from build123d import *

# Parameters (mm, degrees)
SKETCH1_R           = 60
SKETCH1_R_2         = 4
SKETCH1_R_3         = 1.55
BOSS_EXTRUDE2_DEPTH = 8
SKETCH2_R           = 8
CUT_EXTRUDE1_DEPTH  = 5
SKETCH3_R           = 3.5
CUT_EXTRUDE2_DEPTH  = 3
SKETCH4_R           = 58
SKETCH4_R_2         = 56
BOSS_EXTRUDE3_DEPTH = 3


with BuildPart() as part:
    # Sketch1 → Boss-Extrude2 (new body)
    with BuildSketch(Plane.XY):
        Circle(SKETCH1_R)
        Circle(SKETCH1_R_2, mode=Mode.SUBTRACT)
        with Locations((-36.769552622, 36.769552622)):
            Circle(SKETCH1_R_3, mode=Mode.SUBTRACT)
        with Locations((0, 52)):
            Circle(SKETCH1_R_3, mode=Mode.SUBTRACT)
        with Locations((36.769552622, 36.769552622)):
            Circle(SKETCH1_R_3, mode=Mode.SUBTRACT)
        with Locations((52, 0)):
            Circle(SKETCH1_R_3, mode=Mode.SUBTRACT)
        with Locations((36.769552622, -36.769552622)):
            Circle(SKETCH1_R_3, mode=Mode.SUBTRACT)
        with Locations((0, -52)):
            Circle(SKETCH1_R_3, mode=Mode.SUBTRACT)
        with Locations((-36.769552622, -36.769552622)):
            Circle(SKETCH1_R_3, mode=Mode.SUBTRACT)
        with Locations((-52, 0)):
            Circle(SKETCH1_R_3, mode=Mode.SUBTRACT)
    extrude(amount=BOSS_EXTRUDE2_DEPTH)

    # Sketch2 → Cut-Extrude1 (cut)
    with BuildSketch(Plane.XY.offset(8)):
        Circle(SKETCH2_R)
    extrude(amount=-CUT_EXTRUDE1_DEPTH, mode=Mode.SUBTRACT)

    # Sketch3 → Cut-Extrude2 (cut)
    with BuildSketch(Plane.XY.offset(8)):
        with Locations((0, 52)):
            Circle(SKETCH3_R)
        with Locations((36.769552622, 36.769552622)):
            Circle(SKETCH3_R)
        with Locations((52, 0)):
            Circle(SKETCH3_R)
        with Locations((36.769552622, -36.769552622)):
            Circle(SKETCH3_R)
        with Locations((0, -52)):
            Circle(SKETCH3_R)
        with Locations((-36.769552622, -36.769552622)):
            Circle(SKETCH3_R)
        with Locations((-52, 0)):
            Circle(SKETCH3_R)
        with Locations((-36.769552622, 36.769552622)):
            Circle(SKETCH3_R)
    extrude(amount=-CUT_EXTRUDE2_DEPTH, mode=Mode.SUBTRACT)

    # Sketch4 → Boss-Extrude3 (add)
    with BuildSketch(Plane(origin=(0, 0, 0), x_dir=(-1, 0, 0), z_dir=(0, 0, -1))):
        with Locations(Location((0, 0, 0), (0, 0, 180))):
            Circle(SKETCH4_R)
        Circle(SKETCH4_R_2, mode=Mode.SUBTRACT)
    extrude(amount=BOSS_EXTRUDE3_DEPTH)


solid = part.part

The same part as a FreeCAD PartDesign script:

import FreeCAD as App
import Part
import Sketcher

doc = App.newDocument("Part")
body = doc.addObject("PartDesign::Body", "Body")

# Sketch on XY plane
sketch1 = body.newObject("Sketcher::SketchObject", "Sketch")
sketch1.AttachmentSupport = (doc.getObject("XY_Plane"), [""])
sketch1.MapMode = "FlatFace"
sketch1.addGeometry(Part.Circle(App.Vector(0, 0, 0), App.Vector(0, 0, 1), 60), False)
sketch1.addGeometry(Part.Circle(App.Vector(-36.769553, -36.769553, 0), App.Vector(0, 0, 1), 1.55), False)
sketch1.addGeometry(Part.Circle(App.Vector(0, -52, 0), App.Vector(0, 0, 1), 1.55), False)
sketch1.addGeometry(Part.Circle(App.Vector(-52, 0, 0), App.Vector(0, 0, 1), 1.55), False)
sketch1.addGeometry(Part.Circle(App.Vector(0, 0, 0), App.Vector(0, 0, 1), 4), False)
sketch1.addGeometry(Part.Circle(App.Vector(36.769553, -36.769553, 0), App.Vector(0, 0, 1), 1.55), False)
sketch1.addGeometry(Part.Circle(App.Vector(52, 0, 0), App.Vector(0, 0, 1), 1.55), False)
sketch1.addGeometry(Part.Circle(App.Vector(-36.769553, 36.769553, 0), App.Vector(0, 0, 1), 1.55), False)
sketch1.addGeometry(Part.Circle(App.Vector(0, 52, 0), App.Vector(0, 0, 1), 1.55), False)
sketch1.addGeometry(Part.Circle(App.Vector(36.769553, 36.769553, 0), App.Vector(0, 0, 1), 1.55), False)
sketch1.addConstraint(Sketcher.Constraint("Coincident", 0, 3, -1, 1))
sketch1.addConstraint(Sketcher.Constraint("Coincident", 4, 3, -1, 1))
sketch1.addConstraint(Sketcher.Constraint("Equal", 1, 2))
sketch1.addConstraint(Sketcher.Constraint("Equal", 2, 3))
sketch1.addConstraint(Sketcher.Constraint("Equal", 3, 5))
sketch1.addConstraint(Sketcher.Constraint("Equal", 5, 6))
sketch1.addConstraint(Sketcher.Constraint("Equal", 6, 7))
sketch1.addConstraint(Sketcher.Constraint("Equal", 7, 8))
sketch1.addConstraint(Sketcher.Constraint("Equal", 8, 9))
sketch1.addConstraint(Sketcher.Constraint("Symmetric", 3, 3, 6, 3, -1, 1))
sketch1.addConstraint(Sketcher.Constraint("Symmetric", 5, 3, 7, 3, -1, 1))
sketch1.addConstraint(Sketcher.Constraint("Symmetric", 2, 3, 8, 3, -1, 1))
sketch1.addConstraint(Sketcher.Constraint("Symmetric", 1, 3, 9, 3, -1, 1))
sketch1.addConstraint(Sketcher.Constraint("Symmetric", 1, 3, 5, 3, -2))
sketch1.addConstraint(Sketcher.Constraint("PointOnObject", 2, 3, -2))
sketch1.addConstraint(Sketcher.Constraint("PointOnObject", 3, 3, -1))
sketch1.addConstraint(Sketcher.Constraint("Diameter", 0, 120.0))
sketch1.addConstraint(Sketcher.Constraint("Diameter", 4, 8.0))
sketch1.addConstraint(Sketcher.Constraint("Diameter", 1, 3.1))
sketch1.addConstraint(Sketcher.Constraint("DistanceY", 2, 3, -1, 1, 52.0))
sketch1.addConstraint(Sketcher.Constraint("DistanceX", 3, 3, -1, 1, 52.0))
sketch1.addConstraint(Sketcher.Constraint("DistanceX", 1, 3, -1, 1, 36.769553))
sketch1.addConstraint(Sketcher.Constraint("DistanceY", 1, 3, -1, 1, 36.769553))
pad1 = body.newObject("PartDesign::Pad", "Pad")
pad1.Profile = sketch1
pad1.Length = 8

# Sketch on XY plane
sketch2 = body.newObject("Sketcher::SketchObject", "Sketch001")
sketch2.AttachmentSupport = (doc.getObject("XY_Plane"), [""])
sketch2.MapMode = "FlatFace"
sketch2.AttachmentOffset = App.Placement(App.Vector(0, 0, 8), App.Rotation())
sketch2.addGeometry(Part.Circle(App.Vector(0, 0, 0), App.Vector(0, 0, 1), 8), False)
sketch2.addConstraint(Sketcher.Constraint("Coincident", 0, 3, -1, 1))
sketch2.addConstraint(Sketcher.Constraint("Diameter", 0, 16.0))
pocket1 = body.newObject("PartDesign::Pocket", "Pocket")
pocket1.Profile = sketch2
pocket1.Length = 5

# Sketch on XY plane
sketch3 = body.newObject("Sketcher::SketchObject", "Sketch002")
sketch3.AttachmentSupport = (doc.getObject("XY_Plane"), [""])
sketch3.MapMode = "FlatFace"
sketch3.AttachmentOffset = App.Placement(App.Vector(0, 0, 8), App.Rotation())
sketch3.addGeometry(Part.Circle(App.Vector(0, 52, 0), App.Vector(0, 0, 1), 3.5), False)
sketch3.addGeometry(Part.Circle(App.Vector(36.769553, 36.769553, 0), App.Vector(0, 0, 1), 3.5), False)
sketch3.addGeometry(Part.Circle(App.Vector(52, 0, 0), App.Vector(0, 0, 1), 3.5), False)
sketch3.addGeometry(Part.Circle(App.Vector(36.769553, -36.769553, 0), App.Vector(0, 0, 1), 3.5), False)
sketch3.addGeometry(Part.Circle(App.Vector(0, -52, 0), App.Vector(0, 0, 1), 3.5), False)
sketch3.addGeometry(Part.Circle(App.Vector(-36.769553, -36.769553, 0), App.Vector(0, 0, 1), 3.5), False)
sketch3.addGeometry(Part.Circle(App.Vector(-52, 0, 0), App.Vector(0, 0, 1), 3.5), False)
sketch3.addGeometry(Part.Circle(App.Vector(-36.769553, 36.769553, 0), App.Vector(0, 0, 1), 3.5), False)
sketch3.addConstraint(Sketcher.Constraint("Equal", 0, 1))
sketch3.addConstraint(Sketcher.Constraint("Equal", 1, 2))
sketch3.addConstraint(Sketcher.Constraint("Equal", 2, 3))
sketch3.addConstraint(Sketcher.Constraint("Equal", 3, 4))
sketch3.addConstraint(Sketcher.Constraint("Equal", 4, 5))
sketch3.addConstraint(Sketcher.Constraint("Equal", 5, 6))
sketch3.addConstraint(Sketcher.Constraint("Equal", 6, 7))
sketch3.addConstraint(Sketcher.Constraint("Symmetric", 0, 3, 4, 3, -1, 1))
sketch3.addConstraint(Sketcher.Constraint("Symmetric", 1, 3, 5, 3, -1, 1))
sketch3.addConstraint(Sketcher.Constraint("Symmetric", 2, 3, 6, 3, -1, 1))
sketch3.addConstraint(Sketcher.Constraint("Symmetric", 3, 3, 7, 3, -1, 1))
sketch3.addConstraint(Sketcher.Constraint("Symmetric", 3, 3, 5, 3, -2))
sketch3.addConstraint(Sketcher.Constraint("PointOnObject", 0, 3, -2))
sketch3.addConstraint(Sketcher.Constraint("PointOnObject", 2, 3, -1))
sketch3.addConstraint(Sketcher.Constraint("Diameter", 0, 7.0))
sketch3.addConstraint(Sketcher.Constraint("DistanceY", -1, 1, 0, 3, 52.0))
sketch3.addConstraint(Sketcher.Constraint("DistanceX", -1, 1, 2, 3, 52.0))
sketch3.addConstraint(Sketcher.Constraint("DistanceX", -1, 1, 1, 3, 36.769553))
sketch3.addConstraint(Sketcher.Constraint("DistanceY", -1, 1, 1, 3, 36.769553))
pocket2 = body.newObject("PartDesign::Pocket", "Pocket001")
pocket2.Profile = sketch3
pocket2.Length = 3

# Sketch on XY plane
sketch4 = body.newObject("Sketcher::SketchObject", "Sketch003")
sketch4.AttachmentSupport = (doc.getObject("XY_Plane"), [""])
sketch4.MapMode = "FlatFace"
sketch4.addGeometry(Part.Circle(App.Vector(0, 0, 0), App.Vector(0, 0, 1), 58), False)
sketch4.addGeometry(Part.Circle(App.Vector(0, 0, 0), App.Vector(0, 0, 1), 56), False)
sketch4.addConstraint(Sketcher.Constraint("Coincident", 0, 3, -1, 1))
sketch4.addConstraint(Sketcher.Constraint("Coincident", 1, 3, -1, 1))
sketch4.addConstraint(Sketcher.Constraint("Diameter", 0, 116.0))
sketch4.addConstraint(Sketcher.Constraint("Diameter", 1, 112.0))
pad2 = body.newObject("PartDesign::Pad", "Pad001")
pad2.Profile = sketch4
pad2.Length = 3
pad2.Reversed = True

doc.recompute()
